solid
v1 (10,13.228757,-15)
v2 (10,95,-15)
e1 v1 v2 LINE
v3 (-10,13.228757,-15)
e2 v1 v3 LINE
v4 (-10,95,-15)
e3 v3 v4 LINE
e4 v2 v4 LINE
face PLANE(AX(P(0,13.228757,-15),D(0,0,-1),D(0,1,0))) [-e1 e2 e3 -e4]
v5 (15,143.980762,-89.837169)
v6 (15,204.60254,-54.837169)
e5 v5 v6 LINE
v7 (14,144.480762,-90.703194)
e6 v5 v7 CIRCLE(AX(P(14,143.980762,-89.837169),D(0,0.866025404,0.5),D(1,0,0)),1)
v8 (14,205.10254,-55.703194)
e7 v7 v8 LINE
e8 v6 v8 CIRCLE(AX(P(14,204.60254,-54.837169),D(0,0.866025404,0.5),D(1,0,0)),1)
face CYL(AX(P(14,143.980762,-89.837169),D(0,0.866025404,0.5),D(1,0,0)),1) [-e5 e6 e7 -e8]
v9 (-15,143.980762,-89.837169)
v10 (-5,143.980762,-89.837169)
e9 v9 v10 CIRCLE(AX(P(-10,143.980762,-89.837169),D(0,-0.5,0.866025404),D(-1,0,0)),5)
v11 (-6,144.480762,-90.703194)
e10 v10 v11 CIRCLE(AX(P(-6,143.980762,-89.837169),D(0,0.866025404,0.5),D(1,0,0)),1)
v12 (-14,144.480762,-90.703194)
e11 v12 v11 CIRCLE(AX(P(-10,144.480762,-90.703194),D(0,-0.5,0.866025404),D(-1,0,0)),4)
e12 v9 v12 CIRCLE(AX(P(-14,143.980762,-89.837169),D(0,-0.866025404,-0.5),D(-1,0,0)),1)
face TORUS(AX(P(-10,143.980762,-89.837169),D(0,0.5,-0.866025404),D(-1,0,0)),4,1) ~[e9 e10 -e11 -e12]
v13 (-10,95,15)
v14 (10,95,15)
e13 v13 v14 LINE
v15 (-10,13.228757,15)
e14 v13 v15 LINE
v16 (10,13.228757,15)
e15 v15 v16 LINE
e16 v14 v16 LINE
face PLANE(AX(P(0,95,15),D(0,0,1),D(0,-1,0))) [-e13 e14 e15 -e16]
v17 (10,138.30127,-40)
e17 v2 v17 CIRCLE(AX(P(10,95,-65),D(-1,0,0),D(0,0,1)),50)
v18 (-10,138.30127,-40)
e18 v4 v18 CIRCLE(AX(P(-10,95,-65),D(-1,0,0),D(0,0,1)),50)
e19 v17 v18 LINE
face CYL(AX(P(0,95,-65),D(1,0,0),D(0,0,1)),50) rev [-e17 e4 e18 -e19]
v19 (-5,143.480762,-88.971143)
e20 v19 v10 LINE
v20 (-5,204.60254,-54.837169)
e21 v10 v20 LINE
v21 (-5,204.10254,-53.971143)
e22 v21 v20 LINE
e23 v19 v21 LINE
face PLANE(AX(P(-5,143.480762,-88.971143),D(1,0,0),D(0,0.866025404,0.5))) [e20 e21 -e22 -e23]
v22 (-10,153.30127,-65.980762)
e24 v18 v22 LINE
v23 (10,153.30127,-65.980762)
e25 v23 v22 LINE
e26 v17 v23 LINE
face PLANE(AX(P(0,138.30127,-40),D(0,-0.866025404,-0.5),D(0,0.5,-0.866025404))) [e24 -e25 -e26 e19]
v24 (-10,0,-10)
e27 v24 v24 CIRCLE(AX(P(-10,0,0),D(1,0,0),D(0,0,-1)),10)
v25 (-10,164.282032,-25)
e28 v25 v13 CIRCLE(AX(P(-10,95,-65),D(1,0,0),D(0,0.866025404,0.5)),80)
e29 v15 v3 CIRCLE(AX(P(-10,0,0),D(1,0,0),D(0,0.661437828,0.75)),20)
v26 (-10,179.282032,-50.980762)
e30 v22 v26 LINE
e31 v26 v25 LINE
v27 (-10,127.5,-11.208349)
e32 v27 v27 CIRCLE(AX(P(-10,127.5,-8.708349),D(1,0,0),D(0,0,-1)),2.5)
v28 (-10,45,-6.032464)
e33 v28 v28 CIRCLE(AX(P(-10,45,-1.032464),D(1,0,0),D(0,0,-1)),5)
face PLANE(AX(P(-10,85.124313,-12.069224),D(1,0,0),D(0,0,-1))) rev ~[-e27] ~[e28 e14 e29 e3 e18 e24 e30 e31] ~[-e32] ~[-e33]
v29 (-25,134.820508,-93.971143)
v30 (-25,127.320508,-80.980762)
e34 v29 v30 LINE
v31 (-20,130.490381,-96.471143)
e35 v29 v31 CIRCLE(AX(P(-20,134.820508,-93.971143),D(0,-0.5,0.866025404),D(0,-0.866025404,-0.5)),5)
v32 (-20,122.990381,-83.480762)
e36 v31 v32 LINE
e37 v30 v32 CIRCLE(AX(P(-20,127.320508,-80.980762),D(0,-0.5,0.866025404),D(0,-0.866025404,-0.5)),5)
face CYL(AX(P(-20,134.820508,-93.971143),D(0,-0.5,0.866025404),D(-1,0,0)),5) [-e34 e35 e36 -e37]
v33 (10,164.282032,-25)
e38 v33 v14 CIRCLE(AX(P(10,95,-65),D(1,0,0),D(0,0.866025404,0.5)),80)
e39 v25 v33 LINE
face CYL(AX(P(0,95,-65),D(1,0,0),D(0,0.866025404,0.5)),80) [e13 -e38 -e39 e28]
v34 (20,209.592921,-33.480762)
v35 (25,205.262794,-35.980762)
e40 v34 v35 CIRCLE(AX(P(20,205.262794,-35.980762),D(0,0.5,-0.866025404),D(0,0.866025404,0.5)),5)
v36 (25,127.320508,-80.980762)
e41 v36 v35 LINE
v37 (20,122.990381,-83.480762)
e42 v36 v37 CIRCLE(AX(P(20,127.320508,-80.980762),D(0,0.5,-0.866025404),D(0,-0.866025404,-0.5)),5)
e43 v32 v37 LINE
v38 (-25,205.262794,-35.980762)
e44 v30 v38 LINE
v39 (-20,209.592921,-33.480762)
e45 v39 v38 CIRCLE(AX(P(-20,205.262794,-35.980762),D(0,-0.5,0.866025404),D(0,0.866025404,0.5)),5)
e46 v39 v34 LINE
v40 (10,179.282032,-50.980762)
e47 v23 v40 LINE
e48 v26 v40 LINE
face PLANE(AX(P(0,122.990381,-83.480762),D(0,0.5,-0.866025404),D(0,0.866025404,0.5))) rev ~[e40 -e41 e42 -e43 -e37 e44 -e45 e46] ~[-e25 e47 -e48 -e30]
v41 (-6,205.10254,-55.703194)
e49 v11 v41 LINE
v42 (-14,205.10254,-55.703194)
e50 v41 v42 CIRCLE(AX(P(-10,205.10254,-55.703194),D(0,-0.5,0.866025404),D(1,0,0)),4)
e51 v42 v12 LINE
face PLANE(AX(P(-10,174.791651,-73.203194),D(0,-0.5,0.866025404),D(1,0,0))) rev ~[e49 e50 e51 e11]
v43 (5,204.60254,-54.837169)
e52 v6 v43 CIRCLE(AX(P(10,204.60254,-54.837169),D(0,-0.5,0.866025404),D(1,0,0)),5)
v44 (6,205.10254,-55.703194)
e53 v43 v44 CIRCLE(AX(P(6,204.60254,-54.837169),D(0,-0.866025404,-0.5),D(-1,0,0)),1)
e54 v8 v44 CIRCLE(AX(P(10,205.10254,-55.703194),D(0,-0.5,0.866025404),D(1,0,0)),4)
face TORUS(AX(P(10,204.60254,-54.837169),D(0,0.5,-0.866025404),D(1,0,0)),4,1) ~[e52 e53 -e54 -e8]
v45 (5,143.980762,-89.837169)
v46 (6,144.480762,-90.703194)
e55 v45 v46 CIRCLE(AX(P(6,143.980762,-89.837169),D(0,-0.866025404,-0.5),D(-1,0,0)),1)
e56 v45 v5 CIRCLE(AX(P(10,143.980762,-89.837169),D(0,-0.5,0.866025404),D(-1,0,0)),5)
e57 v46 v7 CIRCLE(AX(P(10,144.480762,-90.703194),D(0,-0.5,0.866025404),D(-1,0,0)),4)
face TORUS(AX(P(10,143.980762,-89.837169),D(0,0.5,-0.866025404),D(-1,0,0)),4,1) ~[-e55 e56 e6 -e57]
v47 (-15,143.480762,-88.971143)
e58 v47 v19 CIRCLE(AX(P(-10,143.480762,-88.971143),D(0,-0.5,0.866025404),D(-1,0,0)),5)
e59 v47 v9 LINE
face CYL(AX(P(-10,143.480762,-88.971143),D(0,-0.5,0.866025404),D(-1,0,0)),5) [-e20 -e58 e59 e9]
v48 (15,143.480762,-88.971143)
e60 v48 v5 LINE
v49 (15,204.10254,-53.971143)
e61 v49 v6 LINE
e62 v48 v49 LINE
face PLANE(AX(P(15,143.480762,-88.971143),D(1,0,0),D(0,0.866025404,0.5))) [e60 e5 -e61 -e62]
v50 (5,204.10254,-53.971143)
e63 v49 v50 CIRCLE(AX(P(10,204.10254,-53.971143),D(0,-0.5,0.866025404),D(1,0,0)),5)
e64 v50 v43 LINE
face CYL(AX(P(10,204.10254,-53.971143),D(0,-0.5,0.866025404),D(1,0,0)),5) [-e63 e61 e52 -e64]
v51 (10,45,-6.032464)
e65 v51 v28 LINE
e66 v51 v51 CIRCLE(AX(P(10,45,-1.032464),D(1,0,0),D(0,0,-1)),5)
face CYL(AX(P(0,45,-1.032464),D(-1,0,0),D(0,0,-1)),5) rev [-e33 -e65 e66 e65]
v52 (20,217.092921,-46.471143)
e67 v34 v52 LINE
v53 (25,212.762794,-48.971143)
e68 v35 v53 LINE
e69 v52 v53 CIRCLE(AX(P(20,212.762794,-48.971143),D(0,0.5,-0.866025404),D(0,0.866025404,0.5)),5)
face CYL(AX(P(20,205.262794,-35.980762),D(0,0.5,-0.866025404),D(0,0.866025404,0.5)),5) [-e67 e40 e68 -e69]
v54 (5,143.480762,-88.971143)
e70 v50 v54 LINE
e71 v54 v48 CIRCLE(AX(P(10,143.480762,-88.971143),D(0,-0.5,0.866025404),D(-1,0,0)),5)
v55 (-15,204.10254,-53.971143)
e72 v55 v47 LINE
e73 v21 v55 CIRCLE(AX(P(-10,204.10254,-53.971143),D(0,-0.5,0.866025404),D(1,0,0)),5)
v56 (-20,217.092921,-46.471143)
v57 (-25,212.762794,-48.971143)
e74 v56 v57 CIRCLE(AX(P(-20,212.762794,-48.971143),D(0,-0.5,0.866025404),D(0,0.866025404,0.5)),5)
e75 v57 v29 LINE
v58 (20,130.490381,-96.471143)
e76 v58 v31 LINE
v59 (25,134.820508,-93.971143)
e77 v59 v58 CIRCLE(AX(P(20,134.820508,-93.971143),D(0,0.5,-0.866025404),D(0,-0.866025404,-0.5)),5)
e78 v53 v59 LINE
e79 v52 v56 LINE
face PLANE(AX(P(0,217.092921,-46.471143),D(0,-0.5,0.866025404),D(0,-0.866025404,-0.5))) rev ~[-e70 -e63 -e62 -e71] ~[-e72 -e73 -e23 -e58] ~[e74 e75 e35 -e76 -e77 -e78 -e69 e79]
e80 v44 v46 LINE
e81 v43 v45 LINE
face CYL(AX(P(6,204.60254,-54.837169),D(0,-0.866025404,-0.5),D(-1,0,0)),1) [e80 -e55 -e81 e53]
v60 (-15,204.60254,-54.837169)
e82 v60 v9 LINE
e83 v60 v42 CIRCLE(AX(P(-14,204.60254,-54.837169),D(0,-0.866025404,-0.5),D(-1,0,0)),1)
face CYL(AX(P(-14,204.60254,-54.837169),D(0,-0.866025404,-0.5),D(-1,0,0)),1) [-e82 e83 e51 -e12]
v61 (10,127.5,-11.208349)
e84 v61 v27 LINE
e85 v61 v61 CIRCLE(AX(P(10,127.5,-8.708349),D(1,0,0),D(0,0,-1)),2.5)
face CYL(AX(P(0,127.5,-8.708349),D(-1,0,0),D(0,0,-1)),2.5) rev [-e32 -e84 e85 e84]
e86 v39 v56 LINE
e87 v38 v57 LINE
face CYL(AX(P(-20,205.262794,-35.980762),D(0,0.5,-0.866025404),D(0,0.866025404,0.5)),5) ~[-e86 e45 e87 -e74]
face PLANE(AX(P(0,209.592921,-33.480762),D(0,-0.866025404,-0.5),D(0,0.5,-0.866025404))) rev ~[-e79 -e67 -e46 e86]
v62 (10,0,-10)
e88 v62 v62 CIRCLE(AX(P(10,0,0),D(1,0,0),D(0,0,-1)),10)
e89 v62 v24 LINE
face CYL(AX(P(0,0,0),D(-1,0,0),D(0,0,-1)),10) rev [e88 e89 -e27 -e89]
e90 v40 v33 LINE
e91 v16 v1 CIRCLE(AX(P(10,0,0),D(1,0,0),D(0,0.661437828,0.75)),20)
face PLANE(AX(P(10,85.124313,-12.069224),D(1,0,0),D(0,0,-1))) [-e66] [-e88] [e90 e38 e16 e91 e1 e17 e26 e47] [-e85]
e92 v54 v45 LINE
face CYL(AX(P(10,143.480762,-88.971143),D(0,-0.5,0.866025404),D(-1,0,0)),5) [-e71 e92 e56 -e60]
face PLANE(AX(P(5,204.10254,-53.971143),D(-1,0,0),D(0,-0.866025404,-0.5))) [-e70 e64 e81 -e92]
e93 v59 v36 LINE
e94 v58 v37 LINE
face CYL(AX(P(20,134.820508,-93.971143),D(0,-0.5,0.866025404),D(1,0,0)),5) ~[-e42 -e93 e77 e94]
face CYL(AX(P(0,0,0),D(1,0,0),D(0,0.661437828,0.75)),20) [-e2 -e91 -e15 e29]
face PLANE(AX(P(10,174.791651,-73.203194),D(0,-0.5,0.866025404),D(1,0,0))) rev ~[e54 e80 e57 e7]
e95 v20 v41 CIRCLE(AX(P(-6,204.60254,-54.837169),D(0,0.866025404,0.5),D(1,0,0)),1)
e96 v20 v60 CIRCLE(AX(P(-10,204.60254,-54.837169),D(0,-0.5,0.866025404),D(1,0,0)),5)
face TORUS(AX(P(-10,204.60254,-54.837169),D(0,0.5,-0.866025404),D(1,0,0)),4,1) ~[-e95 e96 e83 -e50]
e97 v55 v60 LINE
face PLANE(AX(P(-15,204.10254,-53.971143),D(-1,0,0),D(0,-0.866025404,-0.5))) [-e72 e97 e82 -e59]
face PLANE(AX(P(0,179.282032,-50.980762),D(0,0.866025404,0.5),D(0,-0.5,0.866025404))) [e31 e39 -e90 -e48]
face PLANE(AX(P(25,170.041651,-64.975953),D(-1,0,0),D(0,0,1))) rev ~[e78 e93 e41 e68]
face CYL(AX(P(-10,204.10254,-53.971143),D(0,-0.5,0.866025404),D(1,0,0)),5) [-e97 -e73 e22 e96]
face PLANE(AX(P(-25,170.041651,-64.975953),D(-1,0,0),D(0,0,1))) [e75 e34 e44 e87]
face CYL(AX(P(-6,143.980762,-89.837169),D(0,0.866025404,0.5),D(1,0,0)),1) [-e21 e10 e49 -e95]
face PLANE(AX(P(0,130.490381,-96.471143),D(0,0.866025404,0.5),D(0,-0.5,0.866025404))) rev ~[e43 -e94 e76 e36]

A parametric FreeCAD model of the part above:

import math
import FreeCAD as App
import Part
import Sketcher

V = App.Vector
Q = App.Units.Quantity


def edges_at(feature, points):
    """Names of the edges that pass closest to the given points."""
    edges = feature.Shape.Edges
    near = lambda p: min(range(len(edges)), key=lambda i: edges[i].distToShape(Part.Vertex(*p))[0])
    return sorted({f"Edge{near(p) + 1}" for p in points})


def add_polygon(sketch, points):
    """Adds a closed chain of lines whose ends are joined by coincident constraints."""
    first, n = sketch.GeometryCount, len(points)
    for a, b in zip(points, points[1:] + points[:1]):
        sketch.addGeometry(Part.LineSegment(App.Vector(*a, 0), App.Vector(*b, 0)), False)
    for i in range(n):
        sketch.addConstraint(Sketcher.Constraint("Coincident", first + i, 2, first + (i + 1) % n, 1))

doc = App.newDocument("Part")
body = doc.addObject("PartDesign::Body", "Body")

# Sketch on YZ plane
sketch1 = body.newObject("Sketcher::SketchObject", "Sketch")
sketch1.AttachmentSupport = (doc.getObject("YZ_Plane"), [""])
sketch1.MapMode = "FlatFace"
sketch1.addGeometry([
    Part.LineSegment(V(153.3, -66, 0), V(179.3, -51, 0)),  # 0
    Part.LineSegment(V(179.3, -51, 0), V(164.3, -25, 0)),  # 1
    Part.ArcOfCircle(Part.Circle(V(95, -65, 0), V(0, 0, 1), 80), math.radians(30), math.radians(90)),  # 2
    Part.LineSegment(V(95, 15, 0), V(13.2, 15, 0)),  # 3
    Part.ArcOfCircle(Part.Circle(V(0, 0, 0), V(0, 0, 1), 20), math.radians(49), math.radians(311)),  # 4
    Part.LineSegment(V(13.2, -15, 0), V(95, -15, 0)),  # 5
    Part.ArcOfCircle(Part.Circle(V(95, -65, 0), V(0, 0, 1), 50), math.radians(30), math.radians(90)),  # 6
    Part.LineSegment(V(138.3, -40, 0), V(153.3, -66, 0)),  # 7
    Part.Circle(V(0, 0, 0), V(0, 0, 1), 10),  # 8
    Part.Circle(V(45, -1, 0), V(0, 0, 1), 5),  # 9
    Part.Circle(V(127.5, -8.7, 0), V(0, 0, 1), 2.5),  # 10
], False)
sketch1.addConstraint([
    Sketcher.Constraint("Coincident", 0, 2, 1, 1),
    Sketcher.Constraint("Tangent", 1, 2, 2, 1),
    Sketcher.Constraint("Tangent", 2, 2, 3, 1),
    Sketcher.Constraint("Coincident", 3, 2, 4, 1),
    Sketcher.Constraint("Coincident", 4, 2, 5, 1),
    Sketcher.Constraint("Tangent", 5, 2, 6, 2),
    Sketcher.Constraint("Tangent", 6, 1, 7, 1),
    Sketcher.Constraint("Coincident", 7, 2, 0, 1),
    Sketcher.Constraint("Horizontal", 3),
    Sketcher.Constraint("Horizontal", 5),
    Sketcher.Constraint("Coincident", 4, 3, -1, 1),
    Sketcher.Constraint("Coincident", 8, 3, -1, 1),
    Sketcher.Constraint("Coincident", 6, 3, 2, 3),
    Sketcher.Constraint("Perpendicular", 0, 1),
    Sketcher.Constraint("Parallel", 1, 7),
    Sketcher.Constraint("Vertical", 3, 2, 4, 2),
    Sketcher.Constraint("Equal", 0, 1),
    Sketcher.Constraint("Diameter", 8, Q("20 mm")),
    Sketcher.Constraint("Diameter", 9, Q("10 mm")),
    Sketcher.Constraint("Diameter", 10, Q("5 mm")),
    Sketcher.Constraint("Radius", 2, Q("80 mm")),
    Sketcher.Constraint("Radius", 4, Q("20 mm")),
    Sketcher.Constraint("Radius", 6, Q("50 mm")),
    Sketcher.Constraint("Angle", 0, Q("30 deg")),
    Sketcher.Constraint("DistanceX", -1, 1, 2, 3, Q("95 mm")),
    Sketcher.Constraint("DistanceX", -1, 1, 9, 3, Q("45 mm")),
    Sketcher.Constraint("DistanceX", -1, 1, 10, 3, Q("127.5 mm")),
    Sketcher.Constraint("DistanceY", 10, 3, -1, 1, Q("8.708349 mm")),
    Sketcher.Constraint("DistanceY", 9, 3, -1, 1, Q("1.032464 mm")),
])
pad1 = body.newObject("PartDesign::Pad", "Pad")
pad1.Profile = sketch1
pad1.Length = 20
pad1.Midplane = True

# Sketch on YZ plane
sketch2 = body.newObject("Sketcher::SketchObject", "Sketch001")
sketch2.AttachmentSupport = (doc.getObject("YZ_Plane"), [""])
sketch2.MapMode = "FlatFace"
add_polygon(sketch2, [(217, -46), (210, -33), (123, -83), (130, -96)])  # lines 0-3
sketch2.addConstraint([
    Sketcher.Constraint("Perpendicular", 0, 1),
    Sketcher.Constraint("Perpendicular", 1, 2),
    Sketcher.Constraint("Perpendicular", 2, 3),
    Sketcher.Constraint("Angle", 0, Q("120 deg")),
    Sketcher.Constraint("Distance", 0, Q("15 mm")),
    Sketcher.Constraint("Distance", 1, Q("100 mm")),
    Sketcher.Constraint("DistanceX", -1, 1, 0, 2, Q("209.592921 mm")),
    Sketcher.Constraint("DistanceY", 0, 2, -1, 1, Q("33.480762 mm")),
])
pad2 = body.newObject("PartDesign::Pad", "Pad001")
pad2.Profile = sketch2
pad2.Length = 50
pad2.Midplane = True
doc.recompute()

fillet = body.newObject("PartDesign::Fillet", "Fillet")
fillet.Base = (pad2, edges_at(pad2, [
    (25, 213.343, -39.976),
    (25, 126.74, -89.976),
    (-25, 213.343, -39.976),
    (-25, 126.74, -89.976),
]))
fillet.Radius = 5

# Sketch on an angled plane
sketch3 = body.newObject("Sketcher::SketchObject", "Sketch002")
sketch3.Placement = App.Placement(V(0, 74.395826, -128.85735), App.Rotation(V(-1, 0, 0), V(0, 0.866025404, 0.5), V(0, 0.5, -0.866025404), "ZXY"))
sketch3.addGeometry([
    Part.LineSegment(V(-5, 80, 0), V(-5, 150, 0)),  # 0
    Part.ArcOfCircle(Part.Circle(V(-10, 150, 0), V(0, 0, 1), 5), math.radians(0), math.radians(180)),  # 1
    Part.LineSegment(V(-15, 150, 0), V(-15, 80, 0)),  # 2
    Part.ArcOfCircle(Part.Circle(V(-10, 80, 0), V(0, 0, 1), 5), math.radians(180), math.radians(360)),  # 3
    Part.LineSegment(V(15, 80, 0), V(15, 150, 0)),  # 4
    Part.ArcOfCircle(Part.Circle(V(10, 150, 0), V(0, 0, 1), 5), math.radians(0), math.radians(180)),  # 5
    Part.LineSegment(V(5, 150, 0), V(5, 80, 0)),  # 6
    Part.ArcOfCircle(Part.Circle(V(10, 80, 0), V(0, 0, 1), 5), math.radians(180), math.radians(360)),  # 7
], False)
sketch3.addConstraint([
    Sketcher.Constraint("Tangent", 0, 2, 1, 1),
    Sketcher.Constraint("Tangent", 1, 2, 2, 1),
    Sketcher.Constraint("Tangent", 2, 2, 3, 1),
    Sketcher.Constraint("Tangent", 3, 2, 0, 1),
    Sketcher.Constraint("Tangent", 4, 2, 5, 1),
    Sketcher.Constraint("Tangent", 5, 2, 6, 1),
    Sketcher.Constraint("Tangent", 6, 2, 7, 1),
    Sketcher.Constraint("Tangent", 7, 2, 4, 1),
    Sketcher.Constraint("Vertical", 0),
    Sketcher.Constraint("Vertical", 2),
    Sketcher.Constraint("Vertical", 4),
    Sketcher.Constraint("Vertical", 6),
    Sketcher.Constraint("Equal", 3, 5),
    Sketcher.Constraint("Symmetric", 1, 3, 5, 3, -2),
    Sketcher.Constraint("Horizontal", 3, 3, 7, 3),
    Sketcher.Constraint("Radius", 1, Q("5 mm")),
    Sketcher.Constraint("DistanceY", 0, 1, 0, 2, Q("70 mm")),
    Sketcher.Constraint("DistanceX", 1, 3, -1, 1, Q("10 mm")),
    Sketcher.Constraint("DistanceY", -1, 1, 1, 3, Q("149.772413 mm")),
])
pad3 = body.newObject("PartDesign::Pad", "Pad002")
pad3.Profile = sketch3
pad3.Length = 2
doc.recompute()

fillet2 = body.newObject("PartDesign::Fillet", "Fillet001")
fillet2.Base = (pad3, edges_at(pad3, [
    (10, 209.433, -53.203),
    (15, 174.792, -73.203),
    (10, 140.151, -93.203),
    (5, 174.792, -73.203),
    (-10, 209.433, -53.203),
    (-5, 174.792, -73.203),
    (-10, 140.151, -93.203),
    (-15, 174.792, -73.203),
]))
fillet2.Radius = 1

doc.recompute()
